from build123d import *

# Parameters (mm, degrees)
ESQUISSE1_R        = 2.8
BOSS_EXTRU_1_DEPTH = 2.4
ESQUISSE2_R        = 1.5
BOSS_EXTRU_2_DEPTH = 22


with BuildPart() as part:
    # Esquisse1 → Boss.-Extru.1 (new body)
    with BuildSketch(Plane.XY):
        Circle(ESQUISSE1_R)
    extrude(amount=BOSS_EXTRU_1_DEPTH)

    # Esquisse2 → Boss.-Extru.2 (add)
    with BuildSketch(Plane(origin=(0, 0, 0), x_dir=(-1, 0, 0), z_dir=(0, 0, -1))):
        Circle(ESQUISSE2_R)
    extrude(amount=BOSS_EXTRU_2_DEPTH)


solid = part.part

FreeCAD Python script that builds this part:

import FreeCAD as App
import Part
import Sketcher

V = App.Vector
Q = App.Units.Quantity

doc = App.newDocument("Part")
params = doc.addObject("Spreadsheet::Sheet", "Params")
for row, (alias, value) in enumerate([
    ("sketch1_diameter", "5.6 mm"),
    ("pad1_length", "2.4 mm"),
    ("sketch2_diameter", "3 mm"),
    ("pad2_length", "22 mm"),
], start=1):
    params.set(f"A{row}", alias)
    params.set(f"B{row}", "=" + value)
    params.setAlias(f"B{row}", alias)

body = doc.addObject("PartDesign::Body", "Body")

sketch1 = doc.addObject("Sketcher::SketchObject", "Sketch")
body.addObject(sketch1)
sketch1.AttachmentSupport = (doc.XY_Plane, [""])
sketch1.MapMode = "FlatFace"
sketch1.addGeometry(Part.Circle(V(0, 0, 0), V(0, 0, 1), 2.8), False)
sketch1.addConstraint([
    Sketcher.Constraint("Coincident", 0, 3, -1, 1),
    Sketcher.Constraint("Diameter", 0, Q("5.6 mm")),
])
sketch1.setExpression("Constraints[1]", "Params.sketch1_diameter")
pad1 = doc.addObject("PartDesign::Pad", "Pad")
body.addObject(pad1)
pad1.Profile = sketch1
pad1.setExpression("Length", "Params.pad1_length")

sketch2 = doc.addObject("Sketcher::SketchObject", "Sketch001")
body.addObject(sketch2)
sketch2.AttachmentSupport = (doc.XY_Plane, [""])
sketch2.MapMode = "FlatFace"
sketch2.addGeometry(Part.Circle(V(0, 0, 0), V(0, 0, 1), 1.5), False)
sketch2.addConstraint([
    Sketcher.Constraint("Coincident", 0, 3, -1, 1),
    Sketcher.Constraint("Diameter", 0, Q("3 mm")),
])
sketch2.setExpression("Constraints[1]", "Params.sketch2_diameter")
pad2 = doc.addObject("PartDesign::Pad", "Pad001")
body.addObject(pad2)
pad2.Profile = sketch2
pad2.setExpression("Length", "Params.pad2_length")
pad2.Reversed = True

doc.recompute()
